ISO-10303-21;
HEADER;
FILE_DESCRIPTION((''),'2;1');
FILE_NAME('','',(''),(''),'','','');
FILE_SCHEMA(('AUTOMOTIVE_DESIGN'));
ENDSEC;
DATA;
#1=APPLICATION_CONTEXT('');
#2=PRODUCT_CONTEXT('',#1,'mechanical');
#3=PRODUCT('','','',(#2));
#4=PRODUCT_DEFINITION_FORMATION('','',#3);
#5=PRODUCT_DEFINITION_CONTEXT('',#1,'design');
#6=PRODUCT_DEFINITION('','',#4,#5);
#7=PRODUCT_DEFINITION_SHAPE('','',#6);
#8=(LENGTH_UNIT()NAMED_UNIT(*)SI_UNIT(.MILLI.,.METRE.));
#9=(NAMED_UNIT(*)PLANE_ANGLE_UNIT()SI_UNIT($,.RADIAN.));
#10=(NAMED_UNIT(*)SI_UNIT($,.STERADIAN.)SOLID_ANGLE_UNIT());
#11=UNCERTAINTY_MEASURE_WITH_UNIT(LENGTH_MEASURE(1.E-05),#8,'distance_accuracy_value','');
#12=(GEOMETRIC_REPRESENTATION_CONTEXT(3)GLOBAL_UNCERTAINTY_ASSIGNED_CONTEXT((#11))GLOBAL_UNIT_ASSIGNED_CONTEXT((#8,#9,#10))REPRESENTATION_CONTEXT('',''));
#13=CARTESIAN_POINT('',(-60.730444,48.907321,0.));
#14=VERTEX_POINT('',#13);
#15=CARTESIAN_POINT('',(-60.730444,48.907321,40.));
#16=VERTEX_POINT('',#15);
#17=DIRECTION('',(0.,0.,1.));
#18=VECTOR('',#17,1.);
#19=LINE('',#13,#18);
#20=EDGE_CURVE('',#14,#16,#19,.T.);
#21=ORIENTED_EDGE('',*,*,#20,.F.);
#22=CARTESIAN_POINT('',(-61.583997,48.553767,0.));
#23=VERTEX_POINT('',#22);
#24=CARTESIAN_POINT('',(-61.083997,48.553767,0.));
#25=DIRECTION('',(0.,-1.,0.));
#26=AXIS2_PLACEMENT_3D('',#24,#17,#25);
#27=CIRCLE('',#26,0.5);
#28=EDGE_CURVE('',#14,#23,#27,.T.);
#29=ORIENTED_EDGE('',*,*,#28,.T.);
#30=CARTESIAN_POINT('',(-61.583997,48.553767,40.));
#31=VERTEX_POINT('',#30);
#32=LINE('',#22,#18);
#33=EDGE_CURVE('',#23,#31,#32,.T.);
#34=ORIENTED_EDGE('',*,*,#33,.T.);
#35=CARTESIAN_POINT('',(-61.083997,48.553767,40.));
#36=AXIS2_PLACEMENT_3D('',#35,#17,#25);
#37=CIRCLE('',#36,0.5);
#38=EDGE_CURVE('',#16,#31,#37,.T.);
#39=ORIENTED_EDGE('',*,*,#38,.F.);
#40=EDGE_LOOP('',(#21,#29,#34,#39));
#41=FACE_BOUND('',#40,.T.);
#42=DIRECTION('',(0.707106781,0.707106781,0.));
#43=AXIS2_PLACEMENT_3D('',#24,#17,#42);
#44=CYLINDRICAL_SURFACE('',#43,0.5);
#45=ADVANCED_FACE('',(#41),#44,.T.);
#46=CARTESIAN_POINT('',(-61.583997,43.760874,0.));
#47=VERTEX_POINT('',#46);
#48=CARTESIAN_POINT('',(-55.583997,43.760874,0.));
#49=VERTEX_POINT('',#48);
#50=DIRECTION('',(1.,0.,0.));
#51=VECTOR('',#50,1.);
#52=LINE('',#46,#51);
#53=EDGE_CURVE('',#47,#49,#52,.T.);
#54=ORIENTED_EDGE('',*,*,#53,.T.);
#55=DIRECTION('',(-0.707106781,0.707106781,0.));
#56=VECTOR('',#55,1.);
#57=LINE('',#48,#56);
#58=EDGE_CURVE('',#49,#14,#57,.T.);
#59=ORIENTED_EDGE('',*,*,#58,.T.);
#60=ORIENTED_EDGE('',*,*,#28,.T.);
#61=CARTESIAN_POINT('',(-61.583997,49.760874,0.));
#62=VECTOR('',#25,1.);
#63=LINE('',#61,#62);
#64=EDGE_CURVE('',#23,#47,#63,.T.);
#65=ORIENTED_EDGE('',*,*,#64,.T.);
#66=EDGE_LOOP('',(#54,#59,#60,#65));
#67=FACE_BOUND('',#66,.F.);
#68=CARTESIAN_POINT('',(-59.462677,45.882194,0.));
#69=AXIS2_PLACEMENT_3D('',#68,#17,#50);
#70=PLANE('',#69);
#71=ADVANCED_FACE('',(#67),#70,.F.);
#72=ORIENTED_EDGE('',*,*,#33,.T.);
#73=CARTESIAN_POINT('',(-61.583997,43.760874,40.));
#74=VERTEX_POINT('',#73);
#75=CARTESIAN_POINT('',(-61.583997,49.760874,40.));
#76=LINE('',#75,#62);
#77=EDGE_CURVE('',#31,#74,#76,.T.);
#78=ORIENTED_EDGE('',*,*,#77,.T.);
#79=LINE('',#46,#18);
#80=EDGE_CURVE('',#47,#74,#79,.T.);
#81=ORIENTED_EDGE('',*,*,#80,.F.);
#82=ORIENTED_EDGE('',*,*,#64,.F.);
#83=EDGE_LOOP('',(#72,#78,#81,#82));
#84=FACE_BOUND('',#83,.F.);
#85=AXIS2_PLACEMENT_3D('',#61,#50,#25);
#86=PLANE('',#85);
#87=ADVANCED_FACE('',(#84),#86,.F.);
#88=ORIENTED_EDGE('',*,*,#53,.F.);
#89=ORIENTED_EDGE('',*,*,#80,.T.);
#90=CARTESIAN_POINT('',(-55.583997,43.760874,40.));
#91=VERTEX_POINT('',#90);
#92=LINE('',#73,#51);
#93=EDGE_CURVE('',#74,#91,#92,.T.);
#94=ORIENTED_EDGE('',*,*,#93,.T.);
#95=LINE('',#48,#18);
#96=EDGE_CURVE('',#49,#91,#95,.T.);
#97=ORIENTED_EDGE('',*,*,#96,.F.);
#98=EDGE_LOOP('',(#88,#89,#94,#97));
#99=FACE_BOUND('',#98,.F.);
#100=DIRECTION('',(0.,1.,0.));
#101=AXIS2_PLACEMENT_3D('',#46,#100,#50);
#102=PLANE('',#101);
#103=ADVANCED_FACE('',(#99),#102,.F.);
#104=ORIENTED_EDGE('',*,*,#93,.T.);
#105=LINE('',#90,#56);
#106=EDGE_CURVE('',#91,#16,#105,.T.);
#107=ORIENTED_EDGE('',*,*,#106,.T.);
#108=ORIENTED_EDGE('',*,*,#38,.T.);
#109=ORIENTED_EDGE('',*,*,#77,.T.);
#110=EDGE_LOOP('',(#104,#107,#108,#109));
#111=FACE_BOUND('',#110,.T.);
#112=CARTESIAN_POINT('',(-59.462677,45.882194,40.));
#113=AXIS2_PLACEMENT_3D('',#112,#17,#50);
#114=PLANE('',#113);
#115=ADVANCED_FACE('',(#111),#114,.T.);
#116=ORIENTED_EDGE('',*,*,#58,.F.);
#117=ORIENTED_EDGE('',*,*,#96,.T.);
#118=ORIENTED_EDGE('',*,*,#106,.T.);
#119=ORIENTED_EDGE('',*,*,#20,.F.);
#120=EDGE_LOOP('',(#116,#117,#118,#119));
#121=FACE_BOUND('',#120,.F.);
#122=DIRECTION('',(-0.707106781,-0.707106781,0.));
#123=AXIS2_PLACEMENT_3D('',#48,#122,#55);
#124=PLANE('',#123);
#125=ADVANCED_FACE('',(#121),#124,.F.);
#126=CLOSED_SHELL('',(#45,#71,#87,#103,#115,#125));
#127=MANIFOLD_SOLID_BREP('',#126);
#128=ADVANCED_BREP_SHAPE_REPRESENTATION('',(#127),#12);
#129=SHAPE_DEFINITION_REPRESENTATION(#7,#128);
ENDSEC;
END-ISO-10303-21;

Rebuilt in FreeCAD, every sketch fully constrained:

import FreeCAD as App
import Part
import Sketcher
from FreeCAD import Vector
Q = App.Units.Quantity


def edges_at(feature, points):
    """Names of the edges that pass closest to the given points."""
    edges = feature.Shape.Edges
    near = lambda p: min(range(len(edges)), key=lambda i: edges[i].distToShape(Part.Vertex(*p))[0])
    return sorted({f"Edge{near(p) + 1}" for p in points})

doc = App.newDocument("Part")
body = doc.addObject("PartDesign::Body", "Body")

# Sketch on XY plane
sketch1 = body.newObject("Sketcher::SketchObject", "Sketch")
sketch1.AttachmentSupport = (doc.getObject("XY_Plane"), [""])
sketch1.MapMode = "FlatFace"
sketch1.addGeometry([
    Part.LineSegment(Vector(-55.583997, 43.760874, 0), Vector(-61.583997, 49.760874, 0)),
    Part.LineSegment(Vector(-61.583997, 49.760874, 0), Vector(-61.583997, 43.760874, 0)),
    Part.LineSegment(Vector(-61.583997, 43.760874, 0), Vector(-55.583997, 43.760874, 0)),
], False)
sketch1.addConstraint([
    Sketcher.Constraint("Coincident", 0, 2, 1, 1),
    Sketcher.Constraint("Coincident", 1, 2, 2, 1),
    Sketcher.Constraint("Coincident", 2, 2, 0, 1),
    Sketcher.Constraint("Vertical", 1),
    Sketcher.Constraint("Horizontal", 2),
    Sketcher.Constraint("Equal", 2, 1),
    Sketcher.Constraint("DistanceX", 2, 1, 2, 2, Q("6 mm")),
    Sketcher.Constraint("DistanceX", 0, 2, -1, 1, Q("61.583997 mm")),
    Sketcher.Constraint("DistanceY", -1, 1, 0, 2, Q("49.760874 mm")),
])
pad1 = body.newObject("PartDesign::Pad", "Pad")
pad1.Profile = sketch1
pad1.Length = 40
doc.recompute()

fillet = body.newObject("PartDesign::Fillet", "Fillet")
fillet.Base = (pad1, edges_at(pad1, [(-61.584, 49.761, 20)]))
fillet.Radius = 0.5

doc.recompute()
